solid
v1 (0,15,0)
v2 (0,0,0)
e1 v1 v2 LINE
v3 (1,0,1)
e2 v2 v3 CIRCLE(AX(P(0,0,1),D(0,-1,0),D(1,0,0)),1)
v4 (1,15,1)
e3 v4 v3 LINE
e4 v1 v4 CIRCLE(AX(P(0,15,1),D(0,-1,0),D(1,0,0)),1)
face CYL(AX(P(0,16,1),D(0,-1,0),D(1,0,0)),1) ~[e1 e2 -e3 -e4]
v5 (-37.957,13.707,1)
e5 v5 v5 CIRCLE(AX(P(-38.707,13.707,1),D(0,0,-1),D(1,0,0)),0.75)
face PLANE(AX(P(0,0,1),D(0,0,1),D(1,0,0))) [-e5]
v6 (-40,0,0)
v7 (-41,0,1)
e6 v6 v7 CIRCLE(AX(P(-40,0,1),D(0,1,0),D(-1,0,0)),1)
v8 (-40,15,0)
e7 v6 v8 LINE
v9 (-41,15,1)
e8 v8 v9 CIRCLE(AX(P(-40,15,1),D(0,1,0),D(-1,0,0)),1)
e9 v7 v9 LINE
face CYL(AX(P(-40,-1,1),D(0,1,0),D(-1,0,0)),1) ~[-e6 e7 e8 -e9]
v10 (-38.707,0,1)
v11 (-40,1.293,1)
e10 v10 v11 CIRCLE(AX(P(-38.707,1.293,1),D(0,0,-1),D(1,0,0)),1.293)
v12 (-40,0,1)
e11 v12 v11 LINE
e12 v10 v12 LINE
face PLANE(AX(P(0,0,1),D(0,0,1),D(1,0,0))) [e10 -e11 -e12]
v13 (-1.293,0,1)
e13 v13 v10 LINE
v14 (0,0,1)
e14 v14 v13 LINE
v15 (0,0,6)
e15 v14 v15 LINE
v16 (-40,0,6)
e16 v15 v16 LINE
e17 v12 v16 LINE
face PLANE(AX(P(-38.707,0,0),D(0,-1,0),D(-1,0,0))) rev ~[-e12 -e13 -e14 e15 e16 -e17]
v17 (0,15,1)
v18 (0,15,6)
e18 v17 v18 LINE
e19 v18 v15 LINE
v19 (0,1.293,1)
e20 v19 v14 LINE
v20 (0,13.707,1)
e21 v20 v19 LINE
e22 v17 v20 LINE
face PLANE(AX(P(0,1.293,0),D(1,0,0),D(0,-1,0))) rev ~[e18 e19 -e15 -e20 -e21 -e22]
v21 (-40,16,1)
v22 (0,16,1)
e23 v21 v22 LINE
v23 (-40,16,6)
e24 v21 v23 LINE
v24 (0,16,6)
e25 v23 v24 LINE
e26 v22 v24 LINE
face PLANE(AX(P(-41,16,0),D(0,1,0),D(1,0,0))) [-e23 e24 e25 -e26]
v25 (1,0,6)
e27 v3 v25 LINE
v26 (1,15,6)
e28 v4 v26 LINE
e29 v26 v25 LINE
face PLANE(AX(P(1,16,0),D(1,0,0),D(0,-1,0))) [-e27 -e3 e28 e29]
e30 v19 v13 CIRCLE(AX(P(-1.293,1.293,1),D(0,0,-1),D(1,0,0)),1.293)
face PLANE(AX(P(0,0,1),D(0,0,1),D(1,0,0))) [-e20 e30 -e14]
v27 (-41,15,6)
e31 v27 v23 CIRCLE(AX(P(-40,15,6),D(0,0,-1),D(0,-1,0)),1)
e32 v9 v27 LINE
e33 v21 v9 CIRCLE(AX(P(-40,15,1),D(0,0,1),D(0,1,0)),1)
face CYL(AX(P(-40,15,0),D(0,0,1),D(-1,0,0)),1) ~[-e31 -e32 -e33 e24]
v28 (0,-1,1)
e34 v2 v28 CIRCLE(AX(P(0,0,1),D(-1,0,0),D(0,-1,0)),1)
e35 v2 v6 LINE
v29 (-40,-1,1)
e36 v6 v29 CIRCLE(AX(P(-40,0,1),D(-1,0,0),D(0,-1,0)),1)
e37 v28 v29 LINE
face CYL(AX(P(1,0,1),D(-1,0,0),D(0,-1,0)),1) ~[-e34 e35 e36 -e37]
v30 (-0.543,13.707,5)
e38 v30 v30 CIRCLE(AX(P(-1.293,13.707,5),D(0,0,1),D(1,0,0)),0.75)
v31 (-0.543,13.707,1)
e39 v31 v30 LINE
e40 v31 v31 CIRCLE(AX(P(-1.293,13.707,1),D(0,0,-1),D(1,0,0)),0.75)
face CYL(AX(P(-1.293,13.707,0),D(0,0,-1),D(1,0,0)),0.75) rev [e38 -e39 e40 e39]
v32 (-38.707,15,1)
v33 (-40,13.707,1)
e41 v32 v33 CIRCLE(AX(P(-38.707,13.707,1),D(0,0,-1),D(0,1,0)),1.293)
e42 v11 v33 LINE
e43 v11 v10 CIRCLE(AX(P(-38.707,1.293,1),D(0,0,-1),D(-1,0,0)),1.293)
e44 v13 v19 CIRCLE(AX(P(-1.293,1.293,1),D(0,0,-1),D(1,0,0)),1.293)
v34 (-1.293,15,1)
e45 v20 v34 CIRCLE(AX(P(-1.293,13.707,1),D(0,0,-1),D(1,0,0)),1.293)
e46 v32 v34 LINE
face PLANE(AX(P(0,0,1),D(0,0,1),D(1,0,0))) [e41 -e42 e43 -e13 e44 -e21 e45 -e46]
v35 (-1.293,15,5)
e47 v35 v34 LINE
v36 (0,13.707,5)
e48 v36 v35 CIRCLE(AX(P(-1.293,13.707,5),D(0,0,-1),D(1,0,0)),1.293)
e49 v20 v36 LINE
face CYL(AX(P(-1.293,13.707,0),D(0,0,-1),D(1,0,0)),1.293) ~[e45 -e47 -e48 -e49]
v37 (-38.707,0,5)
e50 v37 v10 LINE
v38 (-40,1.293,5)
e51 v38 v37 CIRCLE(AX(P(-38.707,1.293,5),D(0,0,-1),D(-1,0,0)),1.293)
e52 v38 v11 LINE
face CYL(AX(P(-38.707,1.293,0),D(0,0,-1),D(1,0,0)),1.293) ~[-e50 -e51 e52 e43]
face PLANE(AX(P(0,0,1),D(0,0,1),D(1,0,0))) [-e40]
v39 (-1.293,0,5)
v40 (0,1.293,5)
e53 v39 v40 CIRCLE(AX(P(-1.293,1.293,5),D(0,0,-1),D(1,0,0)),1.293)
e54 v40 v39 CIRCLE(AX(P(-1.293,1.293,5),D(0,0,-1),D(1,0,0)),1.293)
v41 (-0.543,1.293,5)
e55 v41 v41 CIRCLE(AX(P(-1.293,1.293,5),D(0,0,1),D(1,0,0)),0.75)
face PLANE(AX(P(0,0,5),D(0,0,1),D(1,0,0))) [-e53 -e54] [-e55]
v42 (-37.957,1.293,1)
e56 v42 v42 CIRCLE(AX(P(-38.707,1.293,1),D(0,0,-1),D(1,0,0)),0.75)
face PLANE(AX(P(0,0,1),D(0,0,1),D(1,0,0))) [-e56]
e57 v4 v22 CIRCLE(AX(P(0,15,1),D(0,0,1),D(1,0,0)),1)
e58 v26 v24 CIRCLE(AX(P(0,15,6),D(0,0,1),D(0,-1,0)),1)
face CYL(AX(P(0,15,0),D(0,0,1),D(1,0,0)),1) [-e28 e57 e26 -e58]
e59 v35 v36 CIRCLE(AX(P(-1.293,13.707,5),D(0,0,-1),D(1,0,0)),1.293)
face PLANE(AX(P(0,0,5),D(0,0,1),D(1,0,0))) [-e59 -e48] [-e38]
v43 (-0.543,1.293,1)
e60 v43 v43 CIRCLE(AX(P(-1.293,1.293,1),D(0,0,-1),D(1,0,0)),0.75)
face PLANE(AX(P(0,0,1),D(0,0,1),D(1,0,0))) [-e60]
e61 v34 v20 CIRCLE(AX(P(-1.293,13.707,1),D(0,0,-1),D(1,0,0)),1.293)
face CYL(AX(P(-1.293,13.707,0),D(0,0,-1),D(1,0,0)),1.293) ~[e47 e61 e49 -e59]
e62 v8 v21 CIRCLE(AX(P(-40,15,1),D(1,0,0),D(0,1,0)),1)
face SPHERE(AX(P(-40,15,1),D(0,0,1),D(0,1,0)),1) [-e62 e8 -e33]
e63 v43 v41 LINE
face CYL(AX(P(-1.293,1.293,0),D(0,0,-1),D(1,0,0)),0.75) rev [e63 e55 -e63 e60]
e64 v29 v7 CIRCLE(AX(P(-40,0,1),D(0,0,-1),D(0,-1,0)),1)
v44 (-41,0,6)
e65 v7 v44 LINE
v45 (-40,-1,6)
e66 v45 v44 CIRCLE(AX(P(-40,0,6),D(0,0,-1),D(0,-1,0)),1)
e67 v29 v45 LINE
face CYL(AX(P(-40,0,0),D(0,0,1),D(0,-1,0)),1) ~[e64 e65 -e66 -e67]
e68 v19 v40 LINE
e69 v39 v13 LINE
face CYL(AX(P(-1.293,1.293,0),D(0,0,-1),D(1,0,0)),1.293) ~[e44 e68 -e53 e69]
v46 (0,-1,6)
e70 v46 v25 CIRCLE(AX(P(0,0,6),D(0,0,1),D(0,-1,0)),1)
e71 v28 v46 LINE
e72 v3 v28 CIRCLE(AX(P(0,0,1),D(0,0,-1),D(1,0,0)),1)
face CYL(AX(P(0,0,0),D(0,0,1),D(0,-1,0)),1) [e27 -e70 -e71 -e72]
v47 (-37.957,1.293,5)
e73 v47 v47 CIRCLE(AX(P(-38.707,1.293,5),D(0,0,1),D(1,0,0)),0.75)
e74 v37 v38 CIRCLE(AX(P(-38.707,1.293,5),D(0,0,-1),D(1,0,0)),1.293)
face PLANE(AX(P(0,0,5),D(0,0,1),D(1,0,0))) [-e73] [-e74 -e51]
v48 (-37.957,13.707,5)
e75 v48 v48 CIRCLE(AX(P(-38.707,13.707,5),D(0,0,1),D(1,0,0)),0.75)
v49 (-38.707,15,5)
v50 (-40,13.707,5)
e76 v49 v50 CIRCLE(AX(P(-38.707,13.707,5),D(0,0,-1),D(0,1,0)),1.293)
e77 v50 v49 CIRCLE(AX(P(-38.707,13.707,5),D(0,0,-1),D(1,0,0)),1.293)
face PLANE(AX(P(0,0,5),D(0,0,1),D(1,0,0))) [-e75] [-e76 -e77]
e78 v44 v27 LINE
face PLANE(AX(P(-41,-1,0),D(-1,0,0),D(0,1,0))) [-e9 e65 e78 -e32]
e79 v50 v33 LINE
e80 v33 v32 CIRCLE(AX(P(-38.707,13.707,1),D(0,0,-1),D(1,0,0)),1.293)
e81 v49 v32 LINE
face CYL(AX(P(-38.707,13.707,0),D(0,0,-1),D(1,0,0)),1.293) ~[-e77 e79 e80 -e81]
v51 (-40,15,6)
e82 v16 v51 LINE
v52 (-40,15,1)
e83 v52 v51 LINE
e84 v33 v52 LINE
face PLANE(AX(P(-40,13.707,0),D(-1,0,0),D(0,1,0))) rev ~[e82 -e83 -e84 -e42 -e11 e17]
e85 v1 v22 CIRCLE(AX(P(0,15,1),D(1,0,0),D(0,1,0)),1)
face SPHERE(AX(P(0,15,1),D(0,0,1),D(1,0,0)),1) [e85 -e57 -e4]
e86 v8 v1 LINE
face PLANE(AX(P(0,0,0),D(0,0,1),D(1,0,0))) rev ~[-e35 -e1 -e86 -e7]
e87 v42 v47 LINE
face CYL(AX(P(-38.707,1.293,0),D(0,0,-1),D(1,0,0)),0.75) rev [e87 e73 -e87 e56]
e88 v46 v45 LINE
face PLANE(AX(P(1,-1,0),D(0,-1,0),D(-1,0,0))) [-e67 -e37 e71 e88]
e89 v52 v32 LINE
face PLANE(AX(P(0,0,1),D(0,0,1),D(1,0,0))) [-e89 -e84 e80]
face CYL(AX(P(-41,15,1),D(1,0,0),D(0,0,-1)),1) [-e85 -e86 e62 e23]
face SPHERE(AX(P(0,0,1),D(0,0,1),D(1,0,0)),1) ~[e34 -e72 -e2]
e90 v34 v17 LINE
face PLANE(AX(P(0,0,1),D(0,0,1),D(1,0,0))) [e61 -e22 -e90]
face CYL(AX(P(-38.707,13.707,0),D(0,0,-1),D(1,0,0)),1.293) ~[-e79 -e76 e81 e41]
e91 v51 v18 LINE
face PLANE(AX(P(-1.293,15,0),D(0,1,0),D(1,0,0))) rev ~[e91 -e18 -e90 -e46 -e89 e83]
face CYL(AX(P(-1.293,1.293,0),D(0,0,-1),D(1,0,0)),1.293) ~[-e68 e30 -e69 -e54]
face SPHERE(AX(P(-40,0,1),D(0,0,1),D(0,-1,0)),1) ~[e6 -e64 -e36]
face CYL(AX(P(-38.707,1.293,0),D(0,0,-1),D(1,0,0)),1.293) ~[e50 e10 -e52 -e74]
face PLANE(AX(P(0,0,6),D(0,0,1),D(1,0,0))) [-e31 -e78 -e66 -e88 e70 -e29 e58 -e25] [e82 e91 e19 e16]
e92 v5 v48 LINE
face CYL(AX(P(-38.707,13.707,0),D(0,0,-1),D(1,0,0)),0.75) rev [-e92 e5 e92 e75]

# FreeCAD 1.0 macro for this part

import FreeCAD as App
import Part
import Sketcher

V = App.Vector


def edges_at(feature, points):
    """Names of the edges that pass closest to the given points."""
    edges = feature.Shape.Edges
    near = lambda p: min(range(len(edges)), key=lambda i: edges[i].distToShape(Part.Vertex(*p))[0])
    return sorted({f"Edge{near(p) + 1}" for p in points})

doc = App.newDocument("Part")
body = doc.addObject("PartDesign::Body", "Body")

# Sketch on XY plane
sketch1 = body.newObject("Sketcher::SketchObject", "Sketch")
sketch1.AttachmentSupport = (doc.getObject("XY_Plane"), [""])
sketch1.MapMode = "FlatFace"
sketch1.addGeometry(Part.LineSegment(V(-41, -1, 0), V(1, -1, 0)), False)
sketch1.addGeometry(Part.LineSegment(V(1, -1, 0), V(1, 16, 0)), False)
sketch1.addGeometry(Part.LineSegment(V(1, 16, 0), V(-41, 16, 0)), False)
sketch1.addGeometry(Part.LineSegment(V(-41, 16, 0), V(-41, -1, 0)), False)
sketch1.addGeometry(Part.LineSegment(V(0, 15, 0), V(0, 0, 0)), False)
sketch1.addGeometry(Part.LineSegment(V(0, 0, 0), V(-40, 0, 0)), False)
sketch1.addGeometry(Part.LineSegment(V(-40, 0, 0), V(-40, 15, 0)), False)
sketch1.addGeometry(Part.LineSegment(V(-40, 15, 0), V(0, 15, 0)), False)
sketch1.addConstraint(Sketcher.Constraint("Coincident", 0, 2, 1, 1))
sketch1.addConstraint(Sketcher.Constraint("Coincident", 1, 2, 2, 1))
sketch1.addConstraint(Sketcher.Constraint("Coincident", 2, 2, 3, 1))
sketch1.addConstraint(Sketcher.Constraint("Coincident", 3, 2, 0, 1))
sketch1.addConstraint(Sketcher.Constraint("Coincident", 4, 2, 5, 1))
sketch1.addConstraint(Sketcher.Constraint("Coincident", 5, 2, 6, 1))
sketch1.addConstraint(Sketcher.Constraint("Coincident", 6, 2, 7, 1))
sketch1.addConstraint(Sketcher.Constraint("Coincident", 7, 2, 4, 1))
sketch1.addConstraint(Sketcher.Constraint("Horizontal", 0))
sketch1.addConstraint(Sketcher.Constraint("Vertical", 1))
sketch1.addConstraint(Sketcher.Constraint("Horizontal", 2))
sketch1.addConstraint(Sketcher.Constraint("Vertical", 3))
sketch1.addConstraint(Sketcher.Constraint("Vertical", 4))
sketch1.addConstraint(Sketcher.Constraint("Horizontal", 5))
sketch1.addConstraint(Sketcher.Constraint("Vertical", 6))
sketch1.addConstraint(Sketcher.Constraint("Horizontal", 7))
sketch1.addConstraint(Sketcher.Constraint("Coincident", 4, 2, -1, 1))
sketch1.addConstraint(Sketcher.Constraint("DistanceX", 0, 1, 0, 2, 42.0))
sketch1.addConstraint(Sketcher.Constraint("DistanceX", 5, 2, 5, 1, 40.0))
sketch1.addConstraint(Sketcher.Constraint("DistanceY", 1, 1, 1, 2, 17.0))
sketch1.addConstraint(Sketcher.Constraint("DistanceY", 4, 2, 4, 1, 15.0))
sketch1.addConstraint(Sketcher.Constraint("DistanceX", -1, 1, 0, 2, 1.0))
sketch1.addConstraint(Sketcher.Constraint("DistanceY", 0, 2, -1, 1, 1.0))
pad1 = body.newObject("PartDesign::Pad", "Pad")
pad1.Profile = sketch1
pad1.Length = 6

# Sketch on XY plane
sketch2 = body.newObject("Sketcher::SketchObject", "Sketch001")
sketch2.AttachmentSupport = (doc.getObject("XY_Plane"), [""])
sketch2.MapMode = "FlatFace"
sketch2.addGeometry(Part.LineSegment(V(0, 0, 0), V(0, 15, 0)), False)
sketch2.addGeometry(Part.LineSegment(V(0, 15, 0), V(-40, 15, 0)), False)
sketch2.addGeometry(Part.LineSegment(V(-40, 15, 0), V(-40, 0, 0)), False)
sketch2.addGeometry(Part.LineSegment(V(-40, 0, 0), V(0, 0, 0)), False)
sketch2.addConstraint(Sketcher.Constraint("Coincident", 0, 2, 1, 1))
sketch2.addConstraint(Sketcher.Constraint("Coincident", 1, 2, 2, 1))
sketch2.addConstraint(Sketcher.Constraint("Coincident", 2, 2, 3, 1))
sketch2.addConstraint(Sketcher.Constraint("Coincident", 3, 2, 0, 1))
sketch2.addConstraint(Sketcher.Constraint("Vertical", 0))
sketch2.addConstraint(Sketcher.Constraint("Horizontal", 1))
sketch2.addConstraint(Sketcher.Constraint("Vertical", 2))
sketch2.addConstraint(Sketcher.Constraint("Horizontal", 3))
sketch2.addConstraint(Sketcher.Constraint("Coincident", 3, 2, -1, 1))
sketch2.addConstraint(Sketcher.Constraint("DistanceX", 1, 2, 1, 1, 40.0))
sketch2.addConstraint(Sketcher.Constraint("DistanceY", 0, 1, 0, 2, 15.0))
pad2 = body.newObject("PartDesign::Pad", "Pad001")
pad2.Profile = sketch2
pad2.Length = 1

# Sketch on XY plane
sketch3 = body.newObject("Sketcher::SketchObject", "Sketch002")
sketch3.AttachmentSupport = (doc.getObject("XY_Plane"), [""])
sketch3.MapMode = "FlatFace"
sketch3.addGeometry(Part.Circle(V(-1.3, 1.3, 0), V(0, 0, 1), 1.3), False)
sketch3.addGeometry(Part.Circle(V(-1.3, 1.3, 0), V(0, 0, 1), 0.8), False)
sketch3.addGeometry(Part.Circle(V(-38.7, 1.3, 0), V(0, 0, 1), 1.3), False)
sketch3.addGeometry(Part.Circle(V(-38.7, 1.3, 0), V(0, 0, 1), 0.8), False)
sketch3.addGeometry(Part.Circle(V(-1.3, 13.7, 0), V(0, 0, 1), 1.3), False)
sketch3.addGeometry(Part.Circle(V(-1.3, 13.7, 0), V(0, 0, 1), 0.8), False)
sketch3.addGeometry(Part.Circle(V(-38.7, 13.7, 0), V(0, 0, 1), 1.3), False)
sketch3.addGeometry(Part.Circle(V(-38.7, 13.7, 0), V(0, 0, 1), 0.8), False)
sketch3.addConstraint(Sketcher.Constraint("Coincident", 1, 3, 0, 3))
sketch3.addConstraint(Sketcher.Constraint("Coincident", 3, 3, 2, 3))
sketch3.addConstraint(Sketcher.Constraint("Coincident", 5, 3, 4, 3))
sketch3.addConstraint(Sketcher.Constraint("Coincident", 7, 3, 6, 3))
sketch3.addConstraint(Sketcher.Constraint("Equal", 0, 2))
sketch3.addConstraint(Sketcher.Constraint("Equal", 1, 3))
sketch3.addConstraint(Sketcher.Constraint("Equal", 2, 4))
sketch3.addConstraint(Sketcher.Constraint("Equal", 3, 5))
sketch3.addConstraint(Sketcher.Constraint("Equal", 4, 6))
sketch3.addConstraint(Sketcher.Constraint("Equal", 5, 7))
sketch3.addConstraint(Sketcher.Constraint("Horizontal", 1, 3, 2, 3))
sketch3.addConstraint(Sketcher.Constraint("Horizontal", 5, 3, 6, 3))
sketch3.addConstraint(Sketcher.Constraint("Vertical", 1, 3, 4, 3))
sketch3.addConstraint(Sketcher.Constraint("Vertical", 3, 3, 6, 3))
sketch3.addConstraint(Sketcher.Constraint("Diameter", 1, 1.5))
sketch3.addConstraint(Sketcher.Constraint("Diameter", 0, 2.586))
sketch3.addConstraint(Sketcher.Constraint("DistanceX", 0, 3, -1, 1, 1.293))
sketch3.addConstraint(Sketcher.Constraint("DistanceY", -1, 1, 0, 3, 1.293))
sketch3.addConstraint(Sketcher.Constraint("DistanceX", 2, 3, -1, 1, 38.707))
sketch3.addConstraint(Sketcher.Constraint("DistanceY", -1, 1, 4, 3, 13.707))
pad3 = body.newObject("PartDesign::Pad", "Pad002")
pad3.Profile = sketch3
pad3.Length = 5
doc.recompute()

fillet = body.newObject("PartDesign::Fillet", "Fillet")
fillet.Base = (pad3, edges_at(pad3, [
    (1, 16, 3),
    (-41, 16, 3),
    (-41, -1, 3),
    (1, -1, 3),
    (1, 7.5, 0),
    (-20, 16, 0),
    (-20, -1, 0),
    (-41, 7.5, 0),
]))
fillet.Radius = 1

doc.recompute()
